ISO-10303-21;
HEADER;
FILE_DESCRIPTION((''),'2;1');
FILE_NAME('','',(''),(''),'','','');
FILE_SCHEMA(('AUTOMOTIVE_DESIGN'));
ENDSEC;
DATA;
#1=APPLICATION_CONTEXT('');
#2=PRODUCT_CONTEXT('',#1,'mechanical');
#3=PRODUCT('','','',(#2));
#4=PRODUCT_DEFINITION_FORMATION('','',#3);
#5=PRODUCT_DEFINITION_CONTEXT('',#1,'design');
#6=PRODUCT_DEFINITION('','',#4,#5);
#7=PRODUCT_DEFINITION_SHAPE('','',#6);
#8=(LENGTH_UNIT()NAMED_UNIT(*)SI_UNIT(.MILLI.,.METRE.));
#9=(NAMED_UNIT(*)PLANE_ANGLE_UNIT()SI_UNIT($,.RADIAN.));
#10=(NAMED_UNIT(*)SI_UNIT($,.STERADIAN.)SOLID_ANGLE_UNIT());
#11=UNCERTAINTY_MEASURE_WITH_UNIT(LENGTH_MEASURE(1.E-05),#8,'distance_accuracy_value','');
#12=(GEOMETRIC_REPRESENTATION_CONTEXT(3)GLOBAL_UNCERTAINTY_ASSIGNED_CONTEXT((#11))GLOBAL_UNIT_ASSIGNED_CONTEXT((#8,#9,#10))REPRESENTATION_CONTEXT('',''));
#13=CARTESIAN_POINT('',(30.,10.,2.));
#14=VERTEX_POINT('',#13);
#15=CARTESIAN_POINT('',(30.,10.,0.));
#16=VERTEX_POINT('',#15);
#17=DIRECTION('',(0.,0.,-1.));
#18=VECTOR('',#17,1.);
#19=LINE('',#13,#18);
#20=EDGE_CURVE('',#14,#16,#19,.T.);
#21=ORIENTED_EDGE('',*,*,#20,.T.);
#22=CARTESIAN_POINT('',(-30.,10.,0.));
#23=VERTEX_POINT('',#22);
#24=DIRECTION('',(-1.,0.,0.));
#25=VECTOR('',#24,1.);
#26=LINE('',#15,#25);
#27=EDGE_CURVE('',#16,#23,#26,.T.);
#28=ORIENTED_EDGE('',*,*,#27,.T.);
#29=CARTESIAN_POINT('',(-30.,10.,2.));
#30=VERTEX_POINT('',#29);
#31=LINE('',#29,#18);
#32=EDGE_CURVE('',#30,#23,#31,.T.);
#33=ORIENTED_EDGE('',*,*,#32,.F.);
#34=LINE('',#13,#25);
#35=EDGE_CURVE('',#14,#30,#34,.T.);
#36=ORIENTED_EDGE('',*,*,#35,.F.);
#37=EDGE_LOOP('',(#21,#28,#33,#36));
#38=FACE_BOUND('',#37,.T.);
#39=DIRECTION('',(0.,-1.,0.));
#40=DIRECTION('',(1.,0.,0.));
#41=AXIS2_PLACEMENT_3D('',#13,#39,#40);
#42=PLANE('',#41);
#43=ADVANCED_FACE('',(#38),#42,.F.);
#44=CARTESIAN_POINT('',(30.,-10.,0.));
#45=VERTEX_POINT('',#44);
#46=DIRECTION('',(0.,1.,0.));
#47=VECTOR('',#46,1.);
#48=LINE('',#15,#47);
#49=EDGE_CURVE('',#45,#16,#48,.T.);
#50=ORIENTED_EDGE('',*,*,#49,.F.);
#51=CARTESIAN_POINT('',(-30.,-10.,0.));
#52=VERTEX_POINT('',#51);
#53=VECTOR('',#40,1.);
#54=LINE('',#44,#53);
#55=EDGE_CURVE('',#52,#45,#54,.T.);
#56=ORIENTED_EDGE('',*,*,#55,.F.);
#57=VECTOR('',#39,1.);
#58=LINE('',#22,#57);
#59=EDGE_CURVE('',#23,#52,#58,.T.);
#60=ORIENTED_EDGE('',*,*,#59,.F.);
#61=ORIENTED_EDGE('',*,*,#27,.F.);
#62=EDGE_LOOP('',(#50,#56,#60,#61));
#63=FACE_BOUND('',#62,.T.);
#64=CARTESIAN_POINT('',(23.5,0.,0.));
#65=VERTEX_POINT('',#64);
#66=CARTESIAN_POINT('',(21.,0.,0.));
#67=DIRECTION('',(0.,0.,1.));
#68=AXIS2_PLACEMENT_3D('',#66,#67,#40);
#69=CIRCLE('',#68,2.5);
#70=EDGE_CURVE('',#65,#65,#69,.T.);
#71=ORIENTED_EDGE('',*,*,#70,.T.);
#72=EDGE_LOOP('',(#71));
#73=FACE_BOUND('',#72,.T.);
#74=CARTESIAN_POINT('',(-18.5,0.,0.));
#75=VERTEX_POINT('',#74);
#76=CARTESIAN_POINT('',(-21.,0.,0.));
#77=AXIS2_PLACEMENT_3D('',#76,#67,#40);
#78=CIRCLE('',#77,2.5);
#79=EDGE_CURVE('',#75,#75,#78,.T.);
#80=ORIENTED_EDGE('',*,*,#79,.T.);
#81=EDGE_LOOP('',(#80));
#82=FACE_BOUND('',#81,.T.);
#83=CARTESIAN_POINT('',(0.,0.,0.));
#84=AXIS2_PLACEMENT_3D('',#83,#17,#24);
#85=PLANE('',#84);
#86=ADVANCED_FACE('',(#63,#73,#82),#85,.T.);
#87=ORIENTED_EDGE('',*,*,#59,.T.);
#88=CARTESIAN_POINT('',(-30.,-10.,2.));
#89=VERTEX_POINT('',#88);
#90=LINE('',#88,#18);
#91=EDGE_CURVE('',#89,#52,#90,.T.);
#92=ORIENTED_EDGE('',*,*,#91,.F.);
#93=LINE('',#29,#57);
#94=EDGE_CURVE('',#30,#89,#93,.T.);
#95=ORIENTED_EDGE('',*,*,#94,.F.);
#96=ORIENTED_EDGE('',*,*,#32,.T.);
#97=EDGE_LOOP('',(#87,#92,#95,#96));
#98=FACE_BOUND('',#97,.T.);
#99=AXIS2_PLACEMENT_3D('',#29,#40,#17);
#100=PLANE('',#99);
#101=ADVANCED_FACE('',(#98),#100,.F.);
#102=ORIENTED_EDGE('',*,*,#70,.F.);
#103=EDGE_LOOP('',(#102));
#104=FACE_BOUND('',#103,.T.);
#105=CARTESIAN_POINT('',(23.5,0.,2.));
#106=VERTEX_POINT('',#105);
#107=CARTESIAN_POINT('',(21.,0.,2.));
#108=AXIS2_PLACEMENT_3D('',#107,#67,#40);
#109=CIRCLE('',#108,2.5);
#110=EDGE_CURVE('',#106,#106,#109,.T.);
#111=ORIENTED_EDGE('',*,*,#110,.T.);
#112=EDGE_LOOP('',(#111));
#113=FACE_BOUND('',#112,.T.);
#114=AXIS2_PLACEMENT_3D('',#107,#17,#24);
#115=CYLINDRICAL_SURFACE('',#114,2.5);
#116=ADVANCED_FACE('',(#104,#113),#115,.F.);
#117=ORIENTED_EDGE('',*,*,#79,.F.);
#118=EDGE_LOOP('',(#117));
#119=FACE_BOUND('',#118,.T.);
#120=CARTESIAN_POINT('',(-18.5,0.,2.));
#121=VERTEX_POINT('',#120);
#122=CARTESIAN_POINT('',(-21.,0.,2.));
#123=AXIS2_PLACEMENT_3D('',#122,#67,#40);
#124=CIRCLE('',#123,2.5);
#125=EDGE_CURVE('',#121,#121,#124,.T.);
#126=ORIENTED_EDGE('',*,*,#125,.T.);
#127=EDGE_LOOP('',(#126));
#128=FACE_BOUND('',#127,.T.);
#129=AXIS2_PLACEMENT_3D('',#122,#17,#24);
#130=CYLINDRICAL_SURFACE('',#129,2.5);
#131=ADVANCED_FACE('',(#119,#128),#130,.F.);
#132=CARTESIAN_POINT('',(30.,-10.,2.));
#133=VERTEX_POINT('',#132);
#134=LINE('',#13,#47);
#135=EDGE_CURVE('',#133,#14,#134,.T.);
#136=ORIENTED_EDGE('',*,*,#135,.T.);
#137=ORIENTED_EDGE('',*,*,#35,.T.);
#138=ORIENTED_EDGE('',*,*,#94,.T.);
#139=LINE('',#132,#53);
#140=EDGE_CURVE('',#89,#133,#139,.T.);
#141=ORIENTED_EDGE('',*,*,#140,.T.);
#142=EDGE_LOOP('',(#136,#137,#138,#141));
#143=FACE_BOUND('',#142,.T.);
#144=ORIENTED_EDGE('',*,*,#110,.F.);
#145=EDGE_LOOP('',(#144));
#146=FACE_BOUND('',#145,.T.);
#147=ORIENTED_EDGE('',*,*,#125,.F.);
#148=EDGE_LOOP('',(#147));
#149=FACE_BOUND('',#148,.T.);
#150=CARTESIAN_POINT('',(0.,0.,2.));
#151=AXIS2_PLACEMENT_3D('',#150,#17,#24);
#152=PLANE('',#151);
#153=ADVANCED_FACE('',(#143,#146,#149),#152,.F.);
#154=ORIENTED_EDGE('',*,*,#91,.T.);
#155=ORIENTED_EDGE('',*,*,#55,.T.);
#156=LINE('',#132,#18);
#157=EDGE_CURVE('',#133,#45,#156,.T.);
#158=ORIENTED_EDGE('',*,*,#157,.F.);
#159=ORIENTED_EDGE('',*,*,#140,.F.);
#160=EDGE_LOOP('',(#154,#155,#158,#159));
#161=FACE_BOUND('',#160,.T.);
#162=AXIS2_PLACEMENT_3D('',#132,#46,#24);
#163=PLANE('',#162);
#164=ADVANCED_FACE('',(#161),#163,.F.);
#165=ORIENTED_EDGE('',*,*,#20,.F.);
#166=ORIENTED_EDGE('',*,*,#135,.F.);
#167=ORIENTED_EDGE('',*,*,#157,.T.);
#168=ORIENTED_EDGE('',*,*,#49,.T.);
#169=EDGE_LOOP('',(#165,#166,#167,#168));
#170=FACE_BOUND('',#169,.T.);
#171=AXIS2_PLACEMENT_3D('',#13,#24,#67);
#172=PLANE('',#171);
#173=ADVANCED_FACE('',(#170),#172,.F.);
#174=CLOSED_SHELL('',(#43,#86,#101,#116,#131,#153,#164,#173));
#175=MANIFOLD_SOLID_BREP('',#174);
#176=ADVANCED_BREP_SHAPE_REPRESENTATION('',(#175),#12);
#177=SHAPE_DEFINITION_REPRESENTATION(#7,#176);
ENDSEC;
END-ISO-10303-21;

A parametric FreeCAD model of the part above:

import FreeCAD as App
import Part
import Sketcher


def add_polygon(sketch, points):
    """Adds a closed chain of lines whose ends are joined by coincident constraints."""
    first, n = sketch.GeometryCount, len(points)
    for a, b in zip(points, points[1:] + points[:1]):
        sketch.addGeometry(Part.LineSegment(App.Vector(*a, 0), App.Vector(*b, 0)), False)
    for i in range(n):
        sketch.addConstraint(Sketcher.Constraint("Coincident", first + i, 2, first + (i + 1) % n, 1))

doc = App.newDocument("Part")
body = doc.addObject("PartDesign::Body", "Body")

sketch1 = doc.addObject("Sketcher::SketchObject", "Sketch")
body.addObject(sketch1)
sketch1.AttachmentSupport = (doc.XY_Plane, [""])
sketch1.MapMode = "FlatFace"
add_polygon(sketch1, [(-30, 10), (-30, -10), (30, -10), (30, 10)])
sketch1.addGeometry(Part.Circle(App.Vector(-21, 0, 0), App.Vector(0, 0, 1), 2.5), False)
sketch1.addGeometry(Part.Circle(App.Vector(21, 0, 0), App.Vector(0, 0, 1), 2.5), False)
sketch1.addConstraint([
    Sketcher.Constraint("Vertical", 0),
    Sketcher.Constraint("Horizontal", 1),
    Sketcher.Constraint("Vertical", 2),
    Sketcher.Constraint("Horizontal", 3),
    Sketcher.Constraint("Equal", 4, 5),
    Sketcher.Constraint("Symmetric", 4, 3, 5, 3, -1, 1),
    Sketcher.Constraint("Symmetric", 0, 2, 2, 2, -1, 1),
    Sketcher.Constraint("PointOnObject", 4, 3, -1),
    Sketcher.Constraint("Diameter", 4, 5.0),
    Sketcher.Constraint("DistanceX", 1, 1, 1, 2, 60.0),
    Sketcher.Constraint("DistanceY", 0, 2, 0, 1, 20.0),
    Sketcher.Constraint("DistanceX", 4, 3, -1, 1, 21.0),
])
pad1 = doc.addObject("PartDesign::Pad", "Pad")
body.addObject(pad1)
pad1.Profile = sketch1
pad1.Length = 2

doc.recompute()
